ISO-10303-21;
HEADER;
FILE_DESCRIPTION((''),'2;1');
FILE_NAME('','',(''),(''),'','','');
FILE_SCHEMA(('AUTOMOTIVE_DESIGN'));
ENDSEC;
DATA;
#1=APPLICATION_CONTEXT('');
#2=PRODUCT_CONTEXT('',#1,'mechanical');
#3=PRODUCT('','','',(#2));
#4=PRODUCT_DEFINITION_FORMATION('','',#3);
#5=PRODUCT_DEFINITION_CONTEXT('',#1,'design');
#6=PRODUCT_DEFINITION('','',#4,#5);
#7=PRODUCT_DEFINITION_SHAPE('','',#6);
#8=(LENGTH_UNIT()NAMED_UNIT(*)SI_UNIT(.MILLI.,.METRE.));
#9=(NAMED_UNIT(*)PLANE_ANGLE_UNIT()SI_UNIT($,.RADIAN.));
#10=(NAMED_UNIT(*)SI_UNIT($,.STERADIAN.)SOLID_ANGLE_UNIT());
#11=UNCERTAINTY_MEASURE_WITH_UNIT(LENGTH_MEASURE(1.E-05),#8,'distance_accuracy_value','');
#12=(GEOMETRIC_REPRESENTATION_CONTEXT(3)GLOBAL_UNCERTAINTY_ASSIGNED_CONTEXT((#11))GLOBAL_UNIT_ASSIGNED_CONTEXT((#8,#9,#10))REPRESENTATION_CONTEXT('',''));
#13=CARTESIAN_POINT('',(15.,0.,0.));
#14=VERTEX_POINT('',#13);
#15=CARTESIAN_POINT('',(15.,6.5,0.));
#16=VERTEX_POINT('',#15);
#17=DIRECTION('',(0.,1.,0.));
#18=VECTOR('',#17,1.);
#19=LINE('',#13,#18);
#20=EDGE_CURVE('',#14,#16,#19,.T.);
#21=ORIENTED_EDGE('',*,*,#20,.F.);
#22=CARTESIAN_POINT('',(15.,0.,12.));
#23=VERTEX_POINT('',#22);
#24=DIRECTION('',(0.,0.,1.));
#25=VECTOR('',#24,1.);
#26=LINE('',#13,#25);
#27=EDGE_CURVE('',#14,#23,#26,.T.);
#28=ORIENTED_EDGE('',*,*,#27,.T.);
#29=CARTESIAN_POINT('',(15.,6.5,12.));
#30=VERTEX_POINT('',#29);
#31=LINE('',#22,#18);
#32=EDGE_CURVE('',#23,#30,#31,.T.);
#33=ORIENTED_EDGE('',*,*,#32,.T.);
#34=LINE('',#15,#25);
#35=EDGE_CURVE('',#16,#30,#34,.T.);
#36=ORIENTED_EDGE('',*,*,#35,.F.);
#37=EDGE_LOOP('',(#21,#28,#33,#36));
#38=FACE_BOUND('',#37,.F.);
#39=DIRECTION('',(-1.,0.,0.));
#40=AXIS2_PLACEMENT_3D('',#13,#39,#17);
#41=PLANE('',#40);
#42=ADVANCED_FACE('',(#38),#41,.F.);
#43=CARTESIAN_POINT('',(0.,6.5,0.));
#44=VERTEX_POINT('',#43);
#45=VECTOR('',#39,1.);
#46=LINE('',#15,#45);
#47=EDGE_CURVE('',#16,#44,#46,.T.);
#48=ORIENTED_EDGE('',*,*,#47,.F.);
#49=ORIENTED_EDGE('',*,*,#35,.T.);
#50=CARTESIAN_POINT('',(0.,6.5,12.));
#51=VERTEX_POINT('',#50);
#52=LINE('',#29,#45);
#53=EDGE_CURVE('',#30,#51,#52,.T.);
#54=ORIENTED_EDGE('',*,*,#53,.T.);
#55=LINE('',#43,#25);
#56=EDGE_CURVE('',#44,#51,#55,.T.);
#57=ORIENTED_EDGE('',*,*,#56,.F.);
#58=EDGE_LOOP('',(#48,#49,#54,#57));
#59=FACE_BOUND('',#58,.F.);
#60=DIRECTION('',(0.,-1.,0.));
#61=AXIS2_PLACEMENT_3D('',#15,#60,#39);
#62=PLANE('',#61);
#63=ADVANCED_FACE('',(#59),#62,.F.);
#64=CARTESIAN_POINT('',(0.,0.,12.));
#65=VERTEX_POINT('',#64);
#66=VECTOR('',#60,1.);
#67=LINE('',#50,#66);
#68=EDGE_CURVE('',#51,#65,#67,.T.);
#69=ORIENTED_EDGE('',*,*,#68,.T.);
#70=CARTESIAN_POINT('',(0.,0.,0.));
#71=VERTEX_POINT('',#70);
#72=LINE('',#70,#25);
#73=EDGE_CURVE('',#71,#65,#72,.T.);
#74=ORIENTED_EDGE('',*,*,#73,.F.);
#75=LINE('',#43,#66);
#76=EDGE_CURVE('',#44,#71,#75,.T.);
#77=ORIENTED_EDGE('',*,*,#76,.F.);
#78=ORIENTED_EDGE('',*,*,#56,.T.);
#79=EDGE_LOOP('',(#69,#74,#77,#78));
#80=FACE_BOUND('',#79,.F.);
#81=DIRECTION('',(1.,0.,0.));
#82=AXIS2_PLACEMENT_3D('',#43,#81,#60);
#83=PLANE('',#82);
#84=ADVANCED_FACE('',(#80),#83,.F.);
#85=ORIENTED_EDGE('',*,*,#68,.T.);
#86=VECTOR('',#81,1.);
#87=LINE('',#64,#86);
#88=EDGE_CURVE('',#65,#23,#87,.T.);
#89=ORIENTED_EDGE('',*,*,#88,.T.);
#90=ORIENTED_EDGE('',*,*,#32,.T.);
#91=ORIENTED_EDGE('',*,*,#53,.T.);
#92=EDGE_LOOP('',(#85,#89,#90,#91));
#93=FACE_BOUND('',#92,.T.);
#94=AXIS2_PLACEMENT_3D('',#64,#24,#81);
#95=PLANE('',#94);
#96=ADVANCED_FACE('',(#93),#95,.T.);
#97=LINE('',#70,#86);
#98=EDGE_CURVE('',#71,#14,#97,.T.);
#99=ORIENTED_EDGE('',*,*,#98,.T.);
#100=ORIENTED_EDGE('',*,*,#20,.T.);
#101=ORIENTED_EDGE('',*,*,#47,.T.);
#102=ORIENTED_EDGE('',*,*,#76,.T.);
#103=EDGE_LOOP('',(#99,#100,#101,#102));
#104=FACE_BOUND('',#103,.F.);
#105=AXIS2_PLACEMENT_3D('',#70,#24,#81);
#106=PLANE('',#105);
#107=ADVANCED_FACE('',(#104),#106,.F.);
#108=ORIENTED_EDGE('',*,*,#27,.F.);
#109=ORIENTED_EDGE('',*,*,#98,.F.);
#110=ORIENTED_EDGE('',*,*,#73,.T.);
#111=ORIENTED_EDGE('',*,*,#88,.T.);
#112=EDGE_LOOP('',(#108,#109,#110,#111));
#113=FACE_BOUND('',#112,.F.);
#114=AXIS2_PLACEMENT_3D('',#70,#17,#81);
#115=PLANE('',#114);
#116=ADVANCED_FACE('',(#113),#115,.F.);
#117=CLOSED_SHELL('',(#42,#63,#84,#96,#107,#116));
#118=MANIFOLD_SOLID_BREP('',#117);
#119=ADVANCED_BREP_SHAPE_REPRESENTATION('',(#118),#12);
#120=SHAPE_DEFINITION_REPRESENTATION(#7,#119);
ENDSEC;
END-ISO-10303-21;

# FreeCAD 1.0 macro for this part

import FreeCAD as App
import Part
import Sketcher
from FreeCAD import Vector
Q = App.Units.Quantity


def add_polygon(sketch, points):
    """Adds a closed chain of lines whose ends are joined by coincident constraints."""
    first, n = sketch.GeometryCount, len(points)
    for a, b in zip(points, points[1:] + points[:1]):
        sketch.addGeometry(Part.LineSegment(App.Vector(*a, 0), App.Vector(*b, 0)), False)
    for i in range(n):
        sketch.addConstraint(Sketcher.Constraint("Coincident", first + i, 2, first + (i + 1) % n, 1))

doc = App.newDocument("Part")
body = doc.addObject("PartDesign::Body", "Body")

# Sketch on XY plane
sketch1 = doc.addObject("Sketcher::SketchObject", "Sketch")
body.addObject(sketch1)
sketch1.AttachmentSupport = (doc.XY_Plane, [""])
sketch1.MapMode = "FlatFace"
add_polygon(sketch1, [(0, 6), (0, 0), (15, 0), (15, 6)])  # lines 0-3
sketch1.addConstraint([
    Sketcher.Constraint("Vertical", 0),
    Sketcher.Constraint("Horizontal", 1),
    Sketcher.Constraint("Vertical", 2),
    Sketcher.Constraint("Horizontal", 3),
    Sketcher.Constraint("Coincident", 0, 2, -1, 1),
    Sketcher.Constraint("DistanceX", 1, 1, 1, 2, Q("15 mm")),
    Sketcher.Constraint("DistanceY", 0, 2, 0, 1, Q("6.5 mm")),
])
pad1 = doc.addObject("PartDesign::Pad", "Pad")
body.addObject(pad1)
pad1.Profile = sketch1
pad1.Length = 12

doc.recompute()
